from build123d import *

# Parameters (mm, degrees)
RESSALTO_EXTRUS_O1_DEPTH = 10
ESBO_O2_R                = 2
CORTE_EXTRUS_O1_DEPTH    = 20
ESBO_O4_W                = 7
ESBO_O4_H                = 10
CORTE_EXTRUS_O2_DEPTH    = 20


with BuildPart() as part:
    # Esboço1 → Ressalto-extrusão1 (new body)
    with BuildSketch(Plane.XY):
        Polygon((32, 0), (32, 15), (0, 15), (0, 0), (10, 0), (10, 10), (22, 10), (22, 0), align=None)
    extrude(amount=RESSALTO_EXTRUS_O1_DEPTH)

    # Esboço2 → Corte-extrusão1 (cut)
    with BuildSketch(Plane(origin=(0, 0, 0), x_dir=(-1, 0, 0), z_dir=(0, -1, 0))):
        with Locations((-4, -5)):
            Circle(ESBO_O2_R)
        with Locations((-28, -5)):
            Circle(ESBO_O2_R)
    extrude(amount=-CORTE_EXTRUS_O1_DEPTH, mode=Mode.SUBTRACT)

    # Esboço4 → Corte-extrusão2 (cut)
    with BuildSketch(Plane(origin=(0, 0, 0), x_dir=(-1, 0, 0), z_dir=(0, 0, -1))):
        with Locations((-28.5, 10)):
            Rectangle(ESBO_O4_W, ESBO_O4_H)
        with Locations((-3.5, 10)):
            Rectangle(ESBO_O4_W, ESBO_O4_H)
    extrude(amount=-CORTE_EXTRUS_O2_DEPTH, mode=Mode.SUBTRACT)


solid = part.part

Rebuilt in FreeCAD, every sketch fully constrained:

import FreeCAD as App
import Part
import Sketcher

V = App.Vector
Q = App.Units.Quantity

doc = App.newDocument("Part")
body = doc.addObject("PartDesign::Body", "Body")

sketch1 = doc.addObject("Sketcher::SketchObject", "Sketch")
body.addObject(sketch1)
sketch1.AttachmentSupport = (doc.XY_Plane, [""])
sketch1.MapMode = "FlatFace"
sketch1.addGeometry(Part.LineSegment(V(32, 0, 0), V(32, 15, 0)), False)
sketch1.addGeometry(Part.LineSegment(V(32, 15, 0), V(0, 15, 0)), False)
sketch1.addGeometry(Part.LineSegment(V(0, 15, 0), V(0, 0, 0)), False)
sketch1.addGeometry(Part.LineSegment(V(0, 0, 0), V(10, 0, 0)), False)
sketch1.addGeometry(Part.LineSegment(V(10, 0, 0), V(10, 10, 0)), False)
sketch1.addGeometry(Part.LineSegment(V(10, 10, 0), V(22, 10, 0)), False)
sketch1.addGeometry(Part.LineSegment(V(22, 10, 0), V(22, 0, 0)), False)
sketch1.addGeometry(Part.LineSegment(V(22, 0, 0), V(32, 0, 0)), False)
sketch1.addConstraint(Sketcher.Constraint("Coincident", 0, 2, 1, 1))
sketch1.addConstraint(Sketcher.Constraint("Coincident", 1, 2, 2, 1))
sketch1.addConstraint(Sketcher.Constraint("Coincident", 2, 2, 3, 1))
sketch1.addConstraint(Sketcher.Constraint("Coincident", 3, 2, 4, 1))
sketch1.addConstraint(Sketcher.Constraint("Coincident", 4, 2, 5, 1))
sketch1.addConstraint(Sketcher.Constraint("Coincident", 5, 2, 6, 1))
sketch1.addConstraint(Sketcher.Constraint("Coincident", 6, 2, 7, 1))
sketch1.addConstraint(Sketcher.Constraint("Coincident", 7, 2, 0, 1))
sketch1.addConstraint(Sketcher.Constraint("Vertical", 0))
sketch1.addConstraint(Sketcher.Constraint("Horizontal", 1))
sketch1.addConstraint(Sketcher.Constraint("Vertical", 2))
sketch1.addConstraint(Sketcher.Constraint("Horizontal", 3))
sketch1.addConstraint(Sketcher.Constraint("Vertical", 4))
sketch1.addConstraint(Sketcher.Constraint("Horizontal", 5))
sketch1.addConstraint(Sketcher.Constraint("Vertical", 6))
sketch1.addConstraint(Sketcher.Constraint("Horizontal", 7))
sketch1.addConstraint(Sketcher.Constraint("Coincident", 2, 2, -1, 1))
sketch1.addConstraint(Sketcher.Constraint("PointOnObject", 6, 2, -1))
sketch1.addConstraint(Sketcher.Constraint("Equal", 3, 7))
sketch1.addConstraint(Sketcher.Constraint("Equal", 7, 4))
sketch1.addConstraint(Sketcher.Constraint("DistanceX", 1, 2, 1, 1, Q("32 mm")))
sketch1.addConstraint(Sketcher.Constraint("DistanceX", 3, 1, 3, 2, Q("10 mm")))
sketch1.addConstraint(Sketcher.Constraint("DistanceY", 0, 1, 0, 2, Q("15 mm")))
pad1 = doc.addObject("PartDesign::Pad", "Pad")
body.addObject(pad1)
pad1.Profile = sketch1
pad1.Length = 10

sketch2 = doc.addObject("Sketcher::SketchObject", "Sketch001")
body.addObject(sketch2)
sketch2.AttachmentSupport = (doc.XZ_Plane, [""])
sketch2.MapMode = "FlatFace"
sketch2.addGeometry(Part.Circle(V(4, 5, 0), V(0, 0, 1), 2), False)
sketch2.addGeometry(Part.Circle(V(28, 5, 0), V(0, 0, 1), 2), False)
sketch2.addConstraint(Sketcher.Constraint("Equal", 0, 1))
sketch2.addConstraint(Sketcher.Constraint("Horizontal", 0, 3, 1, 3))
sketch2.addConstraint(Sketcher.Constraint("Diameter", 0, Q("4 mm")))
sketch2.addConstraint(Sketcher.Constraint("DistanceX", -1, 1, 0, 3, Q("4 mm")))
sketch2.addConstraint(Sketcher.Constraint("DistanceY", -1, 1, 0, 3, Q("5 mm")))
sketch2.addConstraint(Sketcher.Constraint("DistanceX", -1, 1, 1, 3, Q("28 mm")))
pocket1 = doc.addObject("PartDesign::Pocket", "Pocket")
body.addObject(pocket1)
pocket1.Profile = sketch2
pocket1.Length = 20

sketch3 = doc.addObject("Sketcher::SketchObject", "Sketch002")
body.addObject(sketch3)
sketch3.AttachmentSupport = (doc.XY_Plane, [""])
sketch3.MapMode = "FlatFace"
sketch3.addGeometry(Part.LineSegment(V(32, 15, 0), V(32, 5, 0)), False)
sketch3.addGeometry(Part.LineSegment(V(32, 5, 0), V(25, 5, 0)), False)
sketch3.addGeometry(Part.LineSegment(V(25, 5, 0), V(25, 15, 0)), False)
sketch3.addGeometry(Part.LineSegment(V(25, 15, 0), V(32, 15, 0)), False)
sketch3.addGeometry(Part.LineSegment(V(7, 15, 0), V(7, 5, 0)), False)
sketch3.addGeometry(Part.LineSegment(V(7, 5, 0), V(0, 5, 0)), False)
sketch3.addGeometry(Part.LineSegment(V(0, 5, 0), V(0, 15, 0)), False)
sketch3.addGeometry(Part.LineSegment(V(0, 15, 0), V(7, 15, 0)), False)
sketch3.addConstraint(Sketcher.Constraint("Coincident", 0, 2, 1, 1))
sketch3.addConstraint(Sketcher.Constraint("Coincident", 1, 2, 2, 1))
sketch3.addConstraint(Sketcher.Constraint("Coincident", 2, 2, 3, 1))
sketch3.addConstraint(Sketcher.Constraint("Coincident", 3, 2, 0, 1))
sketch3.addConstraint(Sketcher.Constraint("Coincident", 4, 2, 5, 1))
sketch3.addConstraint(Sketcher.Constraint("Coincident", 5, 2, 6, 1))
sketch3.addConstraint(Sketcher.Constraint("Coincident", 6, 2, 7, 1))
sketch3.addConstraint(Sketcher.Constraint("Coincident", 7, 2, 4, 1))
sketch3.addConstraint(Sketcher.Constraint("Vertical", 0))
sketch3.addConstraint(Sketcher.Constraint("Horizontal", 1))
sketch3.addConstraint(Sketcher.Constraint("Vertical", 2))
sketch3.addConstraint(Sketcher.Constraint("Horizontal", 3))
sketch3.addConstraint(Sketcher.Constraint("Vertical", 4))
sketch3.addConstraint(Sketcher.Constraint("Horizontal", 5))
sketch3.addConstraint(Sketcher.Constraint("Vertical", 6))
sketch3.addConstraint(Sketcher.Constraint("Horizontal", 7))
sketch3.addConstraint(Sketcher.Constraint("PointOnObject", 5, 2, -2))
sketch3.addConstraint(Sketcher.Constraint("Horizontal", 1, 2, 4, 2))
sketch3.addConstraint(Sketcher.Constraint("Horizontal", 3, 2, 6, 2))
sketch3.addConstraint(Sketcher.Constraint("Equal", 3, 5))
sketch3.addConstraint(Sketcher.Constraint("DistanceX", 1, 2, 1, 1, Q("7 mm")))
sketch3.addConstraint(Sketcher.Constraint("DistanceY", 0, 2, 0, 1, Q("10 mm")))
sketch3.addConstraint(Sketcher.Constraint("DistanceX", -1, 1, 0, 2, Q("32 mm")))
sketch3.addConstraint(Sketcher.Constraint("DistanceY", -1, 1, 0, 2, Q("5 mm")))
pocket2 = doc.addObject("PartDesign::Pocket", "Pocket001")
body.addObject(pocket2)
pocket2.Profile = sketch3
pocket2.Length = 20
pocket2.Reversed = True

doc.recompute()
